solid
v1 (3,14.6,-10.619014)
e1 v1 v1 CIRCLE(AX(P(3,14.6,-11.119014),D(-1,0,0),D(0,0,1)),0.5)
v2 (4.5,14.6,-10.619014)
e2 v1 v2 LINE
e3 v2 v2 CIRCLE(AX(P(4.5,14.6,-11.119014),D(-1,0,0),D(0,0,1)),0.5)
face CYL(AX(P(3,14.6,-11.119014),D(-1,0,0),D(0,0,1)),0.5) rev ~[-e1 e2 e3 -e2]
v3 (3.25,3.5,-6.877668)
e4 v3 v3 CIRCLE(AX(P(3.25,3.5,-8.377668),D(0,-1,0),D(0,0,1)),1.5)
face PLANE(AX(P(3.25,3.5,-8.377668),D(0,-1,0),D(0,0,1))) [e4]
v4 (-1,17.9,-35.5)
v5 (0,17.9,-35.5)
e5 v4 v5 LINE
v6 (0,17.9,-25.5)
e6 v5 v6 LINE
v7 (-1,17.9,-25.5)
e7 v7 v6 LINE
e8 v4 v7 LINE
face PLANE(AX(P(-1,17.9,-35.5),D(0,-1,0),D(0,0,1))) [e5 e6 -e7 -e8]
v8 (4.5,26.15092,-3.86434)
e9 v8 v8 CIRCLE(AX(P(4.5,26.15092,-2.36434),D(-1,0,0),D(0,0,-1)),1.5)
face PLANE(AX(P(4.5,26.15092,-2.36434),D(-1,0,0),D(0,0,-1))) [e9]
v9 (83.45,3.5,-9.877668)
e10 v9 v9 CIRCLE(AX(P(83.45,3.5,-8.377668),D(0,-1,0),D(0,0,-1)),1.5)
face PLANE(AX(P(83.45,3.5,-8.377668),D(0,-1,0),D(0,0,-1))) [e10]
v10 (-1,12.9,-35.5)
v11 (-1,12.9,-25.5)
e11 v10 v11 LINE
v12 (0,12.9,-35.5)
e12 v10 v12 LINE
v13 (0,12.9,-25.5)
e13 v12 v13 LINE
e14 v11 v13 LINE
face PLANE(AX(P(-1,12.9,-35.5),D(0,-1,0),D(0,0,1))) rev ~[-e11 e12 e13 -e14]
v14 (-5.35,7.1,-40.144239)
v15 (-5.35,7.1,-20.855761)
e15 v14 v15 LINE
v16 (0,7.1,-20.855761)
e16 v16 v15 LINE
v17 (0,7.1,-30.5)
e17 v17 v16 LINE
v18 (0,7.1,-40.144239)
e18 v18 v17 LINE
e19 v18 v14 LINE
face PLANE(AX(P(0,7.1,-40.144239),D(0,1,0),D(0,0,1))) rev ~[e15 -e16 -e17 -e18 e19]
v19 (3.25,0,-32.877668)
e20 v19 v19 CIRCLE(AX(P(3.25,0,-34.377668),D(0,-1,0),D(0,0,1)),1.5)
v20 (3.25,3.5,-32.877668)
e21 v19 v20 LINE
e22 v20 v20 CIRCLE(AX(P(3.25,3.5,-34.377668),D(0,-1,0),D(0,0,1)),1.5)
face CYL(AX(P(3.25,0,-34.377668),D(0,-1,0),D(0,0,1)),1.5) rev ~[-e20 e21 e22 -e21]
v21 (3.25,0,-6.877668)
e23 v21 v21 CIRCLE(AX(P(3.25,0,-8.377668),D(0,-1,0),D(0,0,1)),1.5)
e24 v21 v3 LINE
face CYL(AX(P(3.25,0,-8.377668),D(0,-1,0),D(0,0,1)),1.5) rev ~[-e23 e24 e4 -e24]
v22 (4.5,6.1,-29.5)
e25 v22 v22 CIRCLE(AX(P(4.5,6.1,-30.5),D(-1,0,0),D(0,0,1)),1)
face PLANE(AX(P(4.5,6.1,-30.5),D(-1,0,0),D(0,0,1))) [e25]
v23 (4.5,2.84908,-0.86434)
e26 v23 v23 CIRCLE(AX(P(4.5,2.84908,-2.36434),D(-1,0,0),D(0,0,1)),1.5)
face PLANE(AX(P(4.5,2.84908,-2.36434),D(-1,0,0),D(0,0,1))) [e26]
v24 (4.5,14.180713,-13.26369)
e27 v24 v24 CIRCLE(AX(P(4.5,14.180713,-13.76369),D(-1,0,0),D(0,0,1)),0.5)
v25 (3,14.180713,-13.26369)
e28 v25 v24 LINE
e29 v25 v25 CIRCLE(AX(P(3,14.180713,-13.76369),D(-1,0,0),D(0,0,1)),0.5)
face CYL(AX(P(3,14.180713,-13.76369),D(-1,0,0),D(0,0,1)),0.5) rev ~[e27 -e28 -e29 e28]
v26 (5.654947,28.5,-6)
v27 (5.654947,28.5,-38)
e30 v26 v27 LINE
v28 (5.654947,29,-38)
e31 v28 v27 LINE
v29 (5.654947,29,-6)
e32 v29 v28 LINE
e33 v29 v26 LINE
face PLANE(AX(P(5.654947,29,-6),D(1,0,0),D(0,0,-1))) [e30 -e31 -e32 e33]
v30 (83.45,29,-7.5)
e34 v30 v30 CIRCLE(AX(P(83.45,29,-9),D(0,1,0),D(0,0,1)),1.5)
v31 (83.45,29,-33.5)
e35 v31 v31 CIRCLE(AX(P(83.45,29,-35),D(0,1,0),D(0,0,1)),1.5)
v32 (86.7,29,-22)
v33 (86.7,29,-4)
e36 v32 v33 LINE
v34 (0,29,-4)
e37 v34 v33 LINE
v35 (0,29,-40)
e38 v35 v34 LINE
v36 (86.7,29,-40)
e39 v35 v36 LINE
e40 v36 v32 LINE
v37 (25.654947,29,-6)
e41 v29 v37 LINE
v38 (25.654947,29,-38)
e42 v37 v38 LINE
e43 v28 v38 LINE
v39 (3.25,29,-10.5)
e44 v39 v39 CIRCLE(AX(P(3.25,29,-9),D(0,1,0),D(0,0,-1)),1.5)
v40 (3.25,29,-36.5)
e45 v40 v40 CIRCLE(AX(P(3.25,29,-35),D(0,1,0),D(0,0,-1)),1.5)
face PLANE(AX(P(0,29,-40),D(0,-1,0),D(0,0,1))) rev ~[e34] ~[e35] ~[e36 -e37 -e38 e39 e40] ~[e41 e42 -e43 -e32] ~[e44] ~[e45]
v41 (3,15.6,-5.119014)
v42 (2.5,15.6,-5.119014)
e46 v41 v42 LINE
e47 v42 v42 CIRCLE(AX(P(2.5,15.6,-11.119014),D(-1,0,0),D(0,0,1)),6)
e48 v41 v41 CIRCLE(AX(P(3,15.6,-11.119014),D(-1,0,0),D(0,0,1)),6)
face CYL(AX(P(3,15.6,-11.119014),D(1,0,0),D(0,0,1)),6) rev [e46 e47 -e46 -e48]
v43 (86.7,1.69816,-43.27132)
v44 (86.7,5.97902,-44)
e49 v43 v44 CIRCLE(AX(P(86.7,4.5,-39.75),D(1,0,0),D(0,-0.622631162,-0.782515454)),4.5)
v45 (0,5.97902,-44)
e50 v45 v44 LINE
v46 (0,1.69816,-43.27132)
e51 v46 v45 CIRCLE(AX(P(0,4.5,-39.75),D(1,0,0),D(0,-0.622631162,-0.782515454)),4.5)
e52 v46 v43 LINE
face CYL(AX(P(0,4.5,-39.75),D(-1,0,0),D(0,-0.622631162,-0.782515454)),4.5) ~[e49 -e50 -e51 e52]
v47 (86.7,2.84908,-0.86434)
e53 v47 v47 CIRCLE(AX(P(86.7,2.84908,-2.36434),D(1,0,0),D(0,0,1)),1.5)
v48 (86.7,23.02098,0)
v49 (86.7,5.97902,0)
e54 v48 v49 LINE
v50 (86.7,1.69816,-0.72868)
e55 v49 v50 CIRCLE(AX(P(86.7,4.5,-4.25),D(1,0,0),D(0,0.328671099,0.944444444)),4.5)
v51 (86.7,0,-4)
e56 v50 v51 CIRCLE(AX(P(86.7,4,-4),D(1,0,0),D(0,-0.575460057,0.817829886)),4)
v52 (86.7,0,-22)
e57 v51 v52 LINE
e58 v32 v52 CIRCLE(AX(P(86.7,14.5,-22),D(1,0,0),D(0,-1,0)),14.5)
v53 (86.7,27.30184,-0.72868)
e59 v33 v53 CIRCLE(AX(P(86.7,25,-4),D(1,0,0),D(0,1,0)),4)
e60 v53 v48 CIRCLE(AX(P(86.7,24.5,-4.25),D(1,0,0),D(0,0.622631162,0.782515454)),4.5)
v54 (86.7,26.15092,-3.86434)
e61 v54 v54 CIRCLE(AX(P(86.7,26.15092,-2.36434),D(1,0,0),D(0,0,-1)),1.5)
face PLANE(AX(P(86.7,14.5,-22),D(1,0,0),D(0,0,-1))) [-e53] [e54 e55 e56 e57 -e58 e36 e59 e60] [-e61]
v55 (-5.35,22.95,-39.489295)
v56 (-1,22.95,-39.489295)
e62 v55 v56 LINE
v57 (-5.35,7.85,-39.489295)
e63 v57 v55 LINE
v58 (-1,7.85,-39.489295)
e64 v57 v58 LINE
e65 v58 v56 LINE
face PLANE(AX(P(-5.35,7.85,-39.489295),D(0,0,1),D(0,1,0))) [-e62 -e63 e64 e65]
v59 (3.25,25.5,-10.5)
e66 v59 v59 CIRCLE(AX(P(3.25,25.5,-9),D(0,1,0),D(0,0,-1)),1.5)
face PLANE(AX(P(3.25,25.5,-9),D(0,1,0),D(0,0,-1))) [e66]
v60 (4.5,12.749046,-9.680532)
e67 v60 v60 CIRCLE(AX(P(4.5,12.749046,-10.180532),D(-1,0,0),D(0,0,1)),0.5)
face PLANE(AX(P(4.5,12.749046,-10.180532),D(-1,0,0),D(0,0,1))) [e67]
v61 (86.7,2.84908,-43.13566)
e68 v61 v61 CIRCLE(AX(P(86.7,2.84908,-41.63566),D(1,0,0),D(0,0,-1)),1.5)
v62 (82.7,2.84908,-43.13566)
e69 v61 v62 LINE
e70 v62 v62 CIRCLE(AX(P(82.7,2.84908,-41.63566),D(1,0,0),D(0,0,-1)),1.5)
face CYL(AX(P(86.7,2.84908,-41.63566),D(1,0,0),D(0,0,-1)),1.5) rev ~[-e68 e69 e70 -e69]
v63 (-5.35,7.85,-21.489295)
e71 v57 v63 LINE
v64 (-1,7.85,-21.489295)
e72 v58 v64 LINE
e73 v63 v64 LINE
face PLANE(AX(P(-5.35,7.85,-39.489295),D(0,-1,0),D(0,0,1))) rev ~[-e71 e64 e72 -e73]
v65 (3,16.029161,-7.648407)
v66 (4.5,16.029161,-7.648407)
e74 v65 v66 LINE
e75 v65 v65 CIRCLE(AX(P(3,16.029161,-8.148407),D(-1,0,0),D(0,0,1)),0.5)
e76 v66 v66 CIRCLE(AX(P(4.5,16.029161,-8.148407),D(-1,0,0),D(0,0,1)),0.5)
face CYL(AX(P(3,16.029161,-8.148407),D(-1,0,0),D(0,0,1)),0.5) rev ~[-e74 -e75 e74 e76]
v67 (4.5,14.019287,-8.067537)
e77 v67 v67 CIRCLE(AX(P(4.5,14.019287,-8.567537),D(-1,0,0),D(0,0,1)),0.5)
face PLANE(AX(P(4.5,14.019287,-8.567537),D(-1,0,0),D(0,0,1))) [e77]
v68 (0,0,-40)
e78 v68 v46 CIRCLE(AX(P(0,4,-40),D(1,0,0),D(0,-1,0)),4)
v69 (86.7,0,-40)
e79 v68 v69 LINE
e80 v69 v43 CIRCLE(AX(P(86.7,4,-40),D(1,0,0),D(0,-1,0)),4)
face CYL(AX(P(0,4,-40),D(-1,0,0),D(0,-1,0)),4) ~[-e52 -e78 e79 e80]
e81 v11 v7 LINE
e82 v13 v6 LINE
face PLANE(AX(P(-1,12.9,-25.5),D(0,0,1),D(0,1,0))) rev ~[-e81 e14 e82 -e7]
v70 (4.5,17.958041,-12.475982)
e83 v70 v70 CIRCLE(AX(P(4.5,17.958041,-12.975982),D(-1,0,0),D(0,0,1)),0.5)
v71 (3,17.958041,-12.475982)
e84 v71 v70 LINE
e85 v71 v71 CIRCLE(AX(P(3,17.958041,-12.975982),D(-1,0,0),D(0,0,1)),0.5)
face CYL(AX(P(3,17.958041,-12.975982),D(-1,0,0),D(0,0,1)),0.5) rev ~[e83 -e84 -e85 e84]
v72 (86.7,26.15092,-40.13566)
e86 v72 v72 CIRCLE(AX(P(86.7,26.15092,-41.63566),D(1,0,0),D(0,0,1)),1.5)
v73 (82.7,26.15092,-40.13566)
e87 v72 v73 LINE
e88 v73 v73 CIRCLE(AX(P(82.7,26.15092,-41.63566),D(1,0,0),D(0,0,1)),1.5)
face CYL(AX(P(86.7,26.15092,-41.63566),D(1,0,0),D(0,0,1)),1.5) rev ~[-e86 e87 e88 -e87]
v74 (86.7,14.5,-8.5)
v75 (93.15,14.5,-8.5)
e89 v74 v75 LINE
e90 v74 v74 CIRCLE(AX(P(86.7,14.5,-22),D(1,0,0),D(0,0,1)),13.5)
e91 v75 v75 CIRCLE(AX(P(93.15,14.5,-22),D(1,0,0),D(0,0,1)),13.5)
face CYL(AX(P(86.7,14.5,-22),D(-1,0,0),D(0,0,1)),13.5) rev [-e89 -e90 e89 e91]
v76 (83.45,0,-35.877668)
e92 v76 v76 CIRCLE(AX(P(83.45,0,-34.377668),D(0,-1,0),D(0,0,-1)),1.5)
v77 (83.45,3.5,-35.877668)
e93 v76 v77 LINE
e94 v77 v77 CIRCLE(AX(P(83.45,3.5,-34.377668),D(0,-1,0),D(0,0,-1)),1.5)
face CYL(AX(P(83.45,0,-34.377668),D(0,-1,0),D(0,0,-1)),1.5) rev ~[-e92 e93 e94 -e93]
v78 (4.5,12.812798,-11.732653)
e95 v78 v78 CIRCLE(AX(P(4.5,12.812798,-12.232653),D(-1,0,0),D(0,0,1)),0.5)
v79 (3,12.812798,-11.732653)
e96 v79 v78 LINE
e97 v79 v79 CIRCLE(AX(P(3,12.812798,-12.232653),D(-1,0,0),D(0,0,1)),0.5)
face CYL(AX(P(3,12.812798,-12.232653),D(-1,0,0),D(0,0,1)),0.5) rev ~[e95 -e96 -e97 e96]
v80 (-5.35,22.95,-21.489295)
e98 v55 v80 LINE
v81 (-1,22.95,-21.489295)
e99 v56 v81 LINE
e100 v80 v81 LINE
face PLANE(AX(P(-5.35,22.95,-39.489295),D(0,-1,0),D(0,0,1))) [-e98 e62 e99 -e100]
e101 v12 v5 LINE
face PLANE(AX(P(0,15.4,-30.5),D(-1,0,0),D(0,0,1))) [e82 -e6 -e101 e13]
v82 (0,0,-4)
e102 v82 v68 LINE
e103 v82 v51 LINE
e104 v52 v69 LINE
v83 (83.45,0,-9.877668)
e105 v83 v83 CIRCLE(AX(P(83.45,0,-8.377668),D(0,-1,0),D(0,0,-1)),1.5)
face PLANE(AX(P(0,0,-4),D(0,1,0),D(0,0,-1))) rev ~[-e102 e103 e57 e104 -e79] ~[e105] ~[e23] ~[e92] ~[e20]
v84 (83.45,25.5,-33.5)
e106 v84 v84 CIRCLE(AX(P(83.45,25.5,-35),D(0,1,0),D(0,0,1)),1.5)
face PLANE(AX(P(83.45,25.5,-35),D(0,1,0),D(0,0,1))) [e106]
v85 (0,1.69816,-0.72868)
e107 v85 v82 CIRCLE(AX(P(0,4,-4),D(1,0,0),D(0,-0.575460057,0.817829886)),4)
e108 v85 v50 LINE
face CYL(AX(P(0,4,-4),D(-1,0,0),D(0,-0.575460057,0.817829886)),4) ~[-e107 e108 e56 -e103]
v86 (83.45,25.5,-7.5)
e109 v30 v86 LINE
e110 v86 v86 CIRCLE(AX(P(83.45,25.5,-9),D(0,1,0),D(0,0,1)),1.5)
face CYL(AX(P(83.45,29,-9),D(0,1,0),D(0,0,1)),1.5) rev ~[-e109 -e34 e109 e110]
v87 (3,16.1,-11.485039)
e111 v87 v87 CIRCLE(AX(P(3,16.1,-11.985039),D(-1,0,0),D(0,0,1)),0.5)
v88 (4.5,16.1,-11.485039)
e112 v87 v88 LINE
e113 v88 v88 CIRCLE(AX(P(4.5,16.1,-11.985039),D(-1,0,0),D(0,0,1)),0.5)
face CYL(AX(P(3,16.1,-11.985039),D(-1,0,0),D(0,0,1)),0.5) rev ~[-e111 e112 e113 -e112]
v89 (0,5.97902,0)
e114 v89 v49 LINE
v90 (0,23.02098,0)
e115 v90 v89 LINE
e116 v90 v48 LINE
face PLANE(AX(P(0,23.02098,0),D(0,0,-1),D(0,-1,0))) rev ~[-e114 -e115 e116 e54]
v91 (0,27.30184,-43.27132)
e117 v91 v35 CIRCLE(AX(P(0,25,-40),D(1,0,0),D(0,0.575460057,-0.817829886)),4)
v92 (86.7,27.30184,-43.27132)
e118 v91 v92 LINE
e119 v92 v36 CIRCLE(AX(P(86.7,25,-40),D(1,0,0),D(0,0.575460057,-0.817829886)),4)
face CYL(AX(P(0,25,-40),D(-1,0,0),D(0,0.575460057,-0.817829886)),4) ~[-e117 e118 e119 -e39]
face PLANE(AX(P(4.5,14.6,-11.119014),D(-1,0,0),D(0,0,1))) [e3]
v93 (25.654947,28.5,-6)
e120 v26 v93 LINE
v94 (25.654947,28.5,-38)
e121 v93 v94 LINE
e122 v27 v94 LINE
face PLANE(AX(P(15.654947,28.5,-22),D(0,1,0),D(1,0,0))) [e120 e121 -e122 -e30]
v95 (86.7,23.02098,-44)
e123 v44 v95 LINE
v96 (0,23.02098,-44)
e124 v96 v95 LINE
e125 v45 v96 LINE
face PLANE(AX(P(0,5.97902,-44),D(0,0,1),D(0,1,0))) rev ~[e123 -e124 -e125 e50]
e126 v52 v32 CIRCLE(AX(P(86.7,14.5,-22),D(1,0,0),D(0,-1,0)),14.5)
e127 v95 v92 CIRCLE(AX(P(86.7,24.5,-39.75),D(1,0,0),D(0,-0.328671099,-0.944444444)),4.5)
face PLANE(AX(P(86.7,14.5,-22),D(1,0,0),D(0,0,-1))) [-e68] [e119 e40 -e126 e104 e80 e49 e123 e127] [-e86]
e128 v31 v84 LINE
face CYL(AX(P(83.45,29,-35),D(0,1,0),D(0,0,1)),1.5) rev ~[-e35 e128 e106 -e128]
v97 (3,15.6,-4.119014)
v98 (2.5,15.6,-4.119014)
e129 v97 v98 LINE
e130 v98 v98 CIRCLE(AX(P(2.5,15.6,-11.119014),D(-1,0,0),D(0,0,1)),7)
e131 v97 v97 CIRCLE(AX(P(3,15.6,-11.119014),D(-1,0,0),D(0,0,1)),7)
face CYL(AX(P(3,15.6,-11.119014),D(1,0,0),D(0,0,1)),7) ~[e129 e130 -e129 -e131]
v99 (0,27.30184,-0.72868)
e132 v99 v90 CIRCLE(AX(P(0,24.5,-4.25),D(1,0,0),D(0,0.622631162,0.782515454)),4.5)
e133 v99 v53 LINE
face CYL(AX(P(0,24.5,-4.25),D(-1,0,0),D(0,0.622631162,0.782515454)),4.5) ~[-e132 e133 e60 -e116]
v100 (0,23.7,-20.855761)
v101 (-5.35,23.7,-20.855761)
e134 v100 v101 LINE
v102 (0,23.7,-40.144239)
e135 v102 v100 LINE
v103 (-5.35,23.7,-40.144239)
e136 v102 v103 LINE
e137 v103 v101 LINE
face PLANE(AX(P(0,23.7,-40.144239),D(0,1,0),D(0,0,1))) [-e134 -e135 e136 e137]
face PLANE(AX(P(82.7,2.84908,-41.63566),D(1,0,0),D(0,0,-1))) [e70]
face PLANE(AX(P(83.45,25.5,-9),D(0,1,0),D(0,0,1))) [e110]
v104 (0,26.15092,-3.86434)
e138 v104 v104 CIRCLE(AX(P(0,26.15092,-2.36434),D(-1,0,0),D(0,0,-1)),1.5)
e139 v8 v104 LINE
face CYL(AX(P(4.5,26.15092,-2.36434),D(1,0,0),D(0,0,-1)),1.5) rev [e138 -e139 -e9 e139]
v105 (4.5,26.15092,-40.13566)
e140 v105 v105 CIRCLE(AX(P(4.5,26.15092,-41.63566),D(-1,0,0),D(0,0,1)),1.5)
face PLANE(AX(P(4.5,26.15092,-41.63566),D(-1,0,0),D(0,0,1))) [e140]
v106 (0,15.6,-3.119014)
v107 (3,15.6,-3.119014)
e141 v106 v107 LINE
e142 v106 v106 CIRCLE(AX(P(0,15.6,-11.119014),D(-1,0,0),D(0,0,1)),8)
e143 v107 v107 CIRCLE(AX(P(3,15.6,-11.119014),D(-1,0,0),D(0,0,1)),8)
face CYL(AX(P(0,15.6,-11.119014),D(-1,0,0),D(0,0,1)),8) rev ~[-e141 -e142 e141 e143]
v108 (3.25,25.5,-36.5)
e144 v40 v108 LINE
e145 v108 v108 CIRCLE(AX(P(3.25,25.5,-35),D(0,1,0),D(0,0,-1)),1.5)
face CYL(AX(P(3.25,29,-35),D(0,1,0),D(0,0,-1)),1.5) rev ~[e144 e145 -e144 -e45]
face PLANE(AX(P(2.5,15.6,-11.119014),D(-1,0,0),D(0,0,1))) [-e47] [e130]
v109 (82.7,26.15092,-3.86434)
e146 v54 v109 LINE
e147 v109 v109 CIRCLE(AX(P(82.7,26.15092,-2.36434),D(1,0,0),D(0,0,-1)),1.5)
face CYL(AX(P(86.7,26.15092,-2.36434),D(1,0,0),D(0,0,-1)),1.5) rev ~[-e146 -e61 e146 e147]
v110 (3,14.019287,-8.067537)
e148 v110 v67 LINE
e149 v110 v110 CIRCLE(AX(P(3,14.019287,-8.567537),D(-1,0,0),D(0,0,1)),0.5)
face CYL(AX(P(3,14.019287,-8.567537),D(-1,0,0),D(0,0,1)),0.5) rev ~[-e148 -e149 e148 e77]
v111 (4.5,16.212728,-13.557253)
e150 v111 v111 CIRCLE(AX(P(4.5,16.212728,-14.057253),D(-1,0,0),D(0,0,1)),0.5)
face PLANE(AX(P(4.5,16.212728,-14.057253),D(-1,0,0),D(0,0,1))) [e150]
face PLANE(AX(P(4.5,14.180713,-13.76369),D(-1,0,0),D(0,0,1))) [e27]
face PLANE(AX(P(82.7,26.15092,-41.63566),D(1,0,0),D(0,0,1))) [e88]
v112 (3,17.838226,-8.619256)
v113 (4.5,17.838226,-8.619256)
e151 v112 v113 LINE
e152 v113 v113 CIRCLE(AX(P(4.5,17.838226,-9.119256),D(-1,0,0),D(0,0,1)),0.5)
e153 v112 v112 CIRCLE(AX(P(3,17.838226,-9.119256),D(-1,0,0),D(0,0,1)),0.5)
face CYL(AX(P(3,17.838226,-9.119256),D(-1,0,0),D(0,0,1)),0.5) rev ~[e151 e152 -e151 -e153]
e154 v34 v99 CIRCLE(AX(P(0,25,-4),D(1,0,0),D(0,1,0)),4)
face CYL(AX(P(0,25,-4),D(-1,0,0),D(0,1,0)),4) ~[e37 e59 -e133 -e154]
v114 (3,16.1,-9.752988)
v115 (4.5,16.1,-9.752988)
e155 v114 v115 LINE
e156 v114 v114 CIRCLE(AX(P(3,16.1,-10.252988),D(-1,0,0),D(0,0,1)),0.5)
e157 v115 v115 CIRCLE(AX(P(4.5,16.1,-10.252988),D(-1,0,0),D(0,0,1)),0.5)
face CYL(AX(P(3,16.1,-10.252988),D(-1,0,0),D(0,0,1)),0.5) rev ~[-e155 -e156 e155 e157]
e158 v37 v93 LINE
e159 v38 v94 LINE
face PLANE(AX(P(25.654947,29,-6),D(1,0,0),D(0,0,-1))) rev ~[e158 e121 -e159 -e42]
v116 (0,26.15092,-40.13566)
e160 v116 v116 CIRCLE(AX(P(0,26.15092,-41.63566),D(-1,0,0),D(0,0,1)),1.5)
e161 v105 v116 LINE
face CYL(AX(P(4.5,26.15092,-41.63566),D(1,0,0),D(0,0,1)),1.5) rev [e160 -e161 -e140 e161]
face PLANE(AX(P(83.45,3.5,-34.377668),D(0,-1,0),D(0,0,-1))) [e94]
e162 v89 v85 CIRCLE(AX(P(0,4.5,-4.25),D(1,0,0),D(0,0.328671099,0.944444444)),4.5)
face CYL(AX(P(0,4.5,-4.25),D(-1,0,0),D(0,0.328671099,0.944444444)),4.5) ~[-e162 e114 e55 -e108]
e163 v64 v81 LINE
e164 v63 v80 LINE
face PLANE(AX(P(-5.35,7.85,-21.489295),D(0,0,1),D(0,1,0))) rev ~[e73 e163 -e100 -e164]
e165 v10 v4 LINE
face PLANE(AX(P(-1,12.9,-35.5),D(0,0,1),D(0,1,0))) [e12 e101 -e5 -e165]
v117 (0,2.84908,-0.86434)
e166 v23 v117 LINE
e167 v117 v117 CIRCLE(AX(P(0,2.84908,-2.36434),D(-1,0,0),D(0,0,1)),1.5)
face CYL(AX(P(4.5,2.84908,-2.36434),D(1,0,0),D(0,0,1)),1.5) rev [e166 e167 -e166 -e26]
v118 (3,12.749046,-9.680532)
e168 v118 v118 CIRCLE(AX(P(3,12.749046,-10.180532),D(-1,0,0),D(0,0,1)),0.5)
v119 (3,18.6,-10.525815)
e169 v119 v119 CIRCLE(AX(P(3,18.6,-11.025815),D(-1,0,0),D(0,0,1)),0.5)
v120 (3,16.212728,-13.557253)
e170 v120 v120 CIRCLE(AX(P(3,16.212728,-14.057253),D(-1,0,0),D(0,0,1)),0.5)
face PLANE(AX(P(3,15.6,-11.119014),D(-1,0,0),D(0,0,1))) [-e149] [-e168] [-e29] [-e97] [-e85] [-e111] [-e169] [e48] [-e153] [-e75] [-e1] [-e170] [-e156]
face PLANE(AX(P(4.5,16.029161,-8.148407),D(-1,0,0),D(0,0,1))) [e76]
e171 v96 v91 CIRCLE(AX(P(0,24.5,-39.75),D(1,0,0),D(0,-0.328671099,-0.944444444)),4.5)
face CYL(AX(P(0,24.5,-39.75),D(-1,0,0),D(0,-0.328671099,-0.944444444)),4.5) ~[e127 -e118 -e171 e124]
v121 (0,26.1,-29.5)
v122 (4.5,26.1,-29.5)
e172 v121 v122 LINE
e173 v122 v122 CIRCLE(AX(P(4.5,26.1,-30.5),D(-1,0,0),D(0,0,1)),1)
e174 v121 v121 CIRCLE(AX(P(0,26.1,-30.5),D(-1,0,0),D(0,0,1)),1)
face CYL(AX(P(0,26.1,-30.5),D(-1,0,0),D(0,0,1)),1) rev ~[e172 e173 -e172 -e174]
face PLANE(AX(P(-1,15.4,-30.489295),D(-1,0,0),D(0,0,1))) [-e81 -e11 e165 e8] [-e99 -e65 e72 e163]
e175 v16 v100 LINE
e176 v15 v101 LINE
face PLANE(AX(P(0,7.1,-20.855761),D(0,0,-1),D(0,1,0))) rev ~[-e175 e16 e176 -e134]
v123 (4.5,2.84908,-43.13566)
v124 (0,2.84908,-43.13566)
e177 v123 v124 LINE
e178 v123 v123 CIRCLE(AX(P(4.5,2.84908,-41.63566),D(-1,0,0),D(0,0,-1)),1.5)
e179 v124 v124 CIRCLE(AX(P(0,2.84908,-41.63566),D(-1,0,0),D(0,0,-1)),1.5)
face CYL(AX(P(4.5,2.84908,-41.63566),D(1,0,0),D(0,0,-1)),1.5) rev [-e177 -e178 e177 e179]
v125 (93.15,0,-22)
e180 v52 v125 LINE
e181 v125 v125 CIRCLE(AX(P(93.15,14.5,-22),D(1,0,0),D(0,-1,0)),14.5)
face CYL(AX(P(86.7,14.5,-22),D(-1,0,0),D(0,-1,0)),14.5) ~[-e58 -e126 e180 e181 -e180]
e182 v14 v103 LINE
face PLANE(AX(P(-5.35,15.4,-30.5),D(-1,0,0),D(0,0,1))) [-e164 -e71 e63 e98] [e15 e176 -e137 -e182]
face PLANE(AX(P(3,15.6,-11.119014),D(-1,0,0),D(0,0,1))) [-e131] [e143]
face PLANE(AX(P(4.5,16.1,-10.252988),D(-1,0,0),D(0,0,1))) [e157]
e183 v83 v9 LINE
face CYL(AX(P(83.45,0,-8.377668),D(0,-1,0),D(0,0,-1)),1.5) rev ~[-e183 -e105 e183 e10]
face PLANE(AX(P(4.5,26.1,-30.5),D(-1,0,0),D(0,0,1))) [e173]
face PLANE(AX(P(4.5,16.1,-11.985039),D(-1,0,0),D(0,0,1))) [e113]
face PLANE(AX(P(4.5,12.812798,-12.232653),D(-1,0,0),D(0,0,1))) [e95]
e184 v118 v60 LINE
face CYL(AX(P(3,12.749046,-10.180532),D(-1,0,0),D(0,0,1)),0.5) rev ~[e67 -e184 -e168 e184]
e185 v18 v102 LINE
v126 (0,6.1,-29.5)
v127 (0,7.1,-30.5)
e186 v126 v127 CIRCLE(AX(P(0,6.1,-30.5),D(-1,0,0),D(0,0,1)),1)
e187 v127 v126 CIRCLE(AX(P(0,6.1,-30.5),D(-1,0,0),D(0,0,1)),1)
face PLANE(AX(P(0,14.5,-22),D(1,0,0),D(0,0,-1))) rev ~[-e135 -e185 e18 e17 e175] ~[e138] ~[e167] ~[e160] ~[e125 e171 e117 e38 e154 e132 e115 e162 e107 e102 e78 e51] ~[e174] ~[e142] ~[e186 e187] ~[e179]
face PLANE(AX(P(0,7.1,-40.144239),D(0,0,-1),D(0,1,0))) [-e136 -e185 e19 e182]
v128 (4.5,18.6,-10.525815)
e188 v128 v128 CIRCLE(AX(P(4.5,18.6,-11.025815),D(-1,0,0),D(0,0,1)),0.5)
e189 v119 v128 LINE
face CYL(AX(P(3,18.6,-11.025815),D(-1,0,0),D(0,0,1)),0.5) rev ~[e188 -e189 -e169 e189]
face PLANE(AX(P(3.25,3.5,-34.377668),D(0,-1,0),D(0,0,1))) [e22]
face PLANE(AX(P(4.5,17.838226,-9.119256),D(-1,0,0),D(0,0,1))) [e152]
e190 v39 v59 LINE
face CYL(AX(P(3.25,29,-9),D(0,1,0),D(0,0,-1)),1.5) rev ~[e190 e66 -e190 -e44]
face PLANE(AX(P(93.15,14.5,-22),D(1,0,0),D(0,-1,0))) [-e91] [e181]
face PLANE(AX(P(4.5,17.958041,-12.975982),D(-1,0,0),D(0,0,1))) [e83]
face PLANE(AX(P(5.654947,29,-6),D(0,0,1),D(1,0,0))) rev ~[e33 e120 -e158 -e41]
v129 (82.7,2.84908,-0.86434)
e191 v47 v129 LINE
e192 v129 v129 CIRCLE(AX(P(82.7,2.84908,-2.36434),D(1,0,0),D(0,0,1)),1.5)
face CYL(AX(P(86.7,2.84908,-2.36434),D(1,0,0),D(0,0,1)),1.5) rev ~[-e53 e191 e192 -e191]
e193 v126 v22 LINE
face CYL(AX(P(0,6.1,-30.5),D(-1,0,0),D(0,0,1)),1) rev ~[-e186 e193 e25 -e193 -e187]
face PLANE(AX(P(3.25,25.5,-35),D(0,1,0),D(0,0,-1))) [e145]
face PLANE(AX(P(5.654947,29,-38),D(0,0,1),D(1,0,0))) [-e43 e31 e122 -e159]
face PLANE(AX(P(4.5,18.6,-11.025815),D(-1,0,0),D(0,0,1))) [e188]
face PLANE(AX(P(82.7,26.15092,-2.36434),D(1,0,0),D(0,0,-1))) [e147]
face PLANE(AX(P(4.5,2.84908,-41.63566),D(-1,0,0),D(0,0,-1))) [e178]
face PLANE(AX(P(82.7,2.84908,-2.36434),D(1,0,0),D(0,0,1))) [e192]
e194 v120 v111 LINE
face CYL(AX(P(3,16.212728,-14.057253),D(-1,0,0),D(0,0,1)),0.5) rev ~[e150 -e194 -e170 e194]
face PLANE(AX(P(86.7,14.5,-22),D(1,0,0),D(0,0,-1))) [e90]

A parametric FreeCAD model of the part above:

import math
import FreeCAD as App
import Part
import Sketcher


def add_polygon(sketch, points):
    """Adds a closed chain of lines whose ends are joined by coincident constraints."""
    first, n = sketch.GeometryCount, len(points)
    for a, b in zip(points, points[1:] + points[:1]):
        sketch.addGeometry(Part.LineSegment(App.Vector(*a, 0), App.Vector(*b, 0)), False)
    for i in range(n):
        sketch.addConstraint(Sketcher.Constraint("Coincident", first + i, 2, first + (i + 1) % n, 1))

doc = App.newDocument("Part")
body = doc.addObject("PartDesign::Body", "Body")

# Sketch on YZ plane
sketch1 = body.newObject("Sketcher::SketchObject", "Sketch")
sketch1.AttachmentSupport = (doc.getObject("YZ_Plane"), [""])
sketch1.MapMode = "FlatFace"
sketch1.addGeometry([
    Part.LineSegment(App.Vector(0, -4, 0), App.Vector(0, -40, 0)),  # 0
    Part.ArcOfCircle(Part.Circle(App.Vector(4, -40, 0), App.Vector(0, 0, 1), 4), math.radians(180), math.radians(234.868143)),  # 1
    Part.ArcOfCircle(Part.Circle(App.Vector(4.5, -39.75, 0), App.Vector(0, 0, 1), 4.5), math.radians(-128.508531), math.radians(-70.811864)),  # 2
    Part.LineSegment(App.Vector(5.97902, -44, 0), App.Vector(23.02098, -44, 0)),  # 3
    Part.ArcOfCircle(Part.Circle(App.Vector(24.5, -39.75, 0), App.Vector(0, 0, 1), 4.5), math.radians(-109.188136), math.radians(-51.491469)),  # 4
    Part.ArcOfCircle(Part.Circle(App.Vector(25, -40, 0), App.Vector(0, 0, 1), 4), math.radians(-54.868143), math.radians(0)),  # 5
    Part.LineSegment(App.Vector(29, -40, 0), App.Vector(29, -4, 0)),  # 6
    Part.ArcOfCircle(Part.Circle(App.Vector(25, -4, 0), App.Vector(0, 0, 1), 4), math.radians(0), math.radians(54.868143)),  # 7
    Part.ArcOfCircle(Part.Circle(App.Vector(24.5, -4.25, 0), App.Vector(0, 0, 1), 4.5), math.radians(51.491469), math.radians(109.188136)),  # 8
    Part.LineSegment(App.Vector(23.02098, 0, 0), App.Vector(5.97902, 0, 0)),  # 9
    Part.ArcOfCircle(Part.Circle(App.Vector(4.5, -4.25, 0), App.Vector(0, 0, 1), 4.5), math.radians(70.811864), math.radians(128.508531)),  # 10
    Part.ArcOfCircle(Part.Circle(App.Vector(4, -4, 0), App.Vector(0, 0, 1), 4), math.radians(125.131857), math.radians(180)),  # 11
], False)
sketch1.addConstraint([
    Sketcher.Constraint("Tangent", 0, 2, 1, 1),
    Sketcher.Constraint("Coincident", 1, 2, 2, 1),
    Sketcher.Constraint("Coincident", 2, 2, 3, 1),
    Sketcher.Constraint("Coincident", 3, 2, 4, 1),
    Sketcher.Constraint("Coincident", 4, 2, 5, 1),
    Sketcher.Constraint("Tangent", 5, 2, 6, 1),
    Sketcher.Constraint("Tangent", 6, 2, 7, 1),
    Sketcher.Constraint("Coincident", 7, 2, 8, 1),
    Sketcher.Constraint("Coincident", 8, 2, 9, 1),
    Sketcher.Constraint("Coincident", 9, 2, 10, 1),
    Sketcher.Constraint("Coincident", 10, 2, 11, 1),
    Sketcher.Constraint("Tangent", 11, 2, 0, 1),
    Sketcher.Constraint("Vertical", 0),
    Sketcher.Constraint("Horizontal", 3),
    Sketcher.Constraint("Vertical", 6),
    Sketcher.Constraint("Horizontal", 9),
    Sketcher.Constraint("Equal", 2, 4),
    Sketcher.Constraint("Equal", 1, 5),
    Sketcher.Constraint("Equal", 5, 7),
    Sketcher.Constraint("Equal", 4, 8),
    Sketcher.Constraint("Equal", 8, 10),
    Sketcher.Constraint("Equal", 7, 11),
    Sketcher.Constraint("PointOnObject", 0, 2, -2),
    Sketcher.Constraint("PointOnObject", 8, 2, -1),
    Sketcher.Constraint("Horizontal", 2, 3, 4, 3),
    Sketcher.Constraint("Horizontal", 1, 3, 5, 3),
    Sketcher.Constraint("Horizontal", 8, 3, 10, 3),
    Sketcher.Constraint("Horizontal", 7, 3, 11, 3),
    Sketcher.Constraint("Horizontal", 1, 2, 4, 2),
    Sketcher.Constraint("Horizontal", 7, 2, 10, 2),
    Sketcher.Constraint("Vertical", 4, 3, 8, 3),
    Sketcher.Constraint("Vertical", 4, 2, 7, 2),
    Sketcher.Constraint("Vertical", 3, 2, 8, 2),
    Sketcher.Constraint("Radius", 1, 4.0),
    Sketcher.Constraint("Radius", 2, 4.5),
    Sketcher.Constraint("DistanceY", 0, 2, 0, 1, 36.0),
    Sketcher.Constraint("DistanceY", 1, 3, -1, 1, 40.0),
    Sketcher.Constraint("DistanceX", -1, 1, 5, 3, 25.0),
    Sketcher.Constraint("DistanceX", 2, 3, 4, 3, 20.0),
    Sketcher.Constraint("DistanceY", 4, 3, 8, 3, 35.5),
])
pad1 = body.newObject("PartDesign::Pad", "Pad")
pad1.Profile = sketch1
pad1.Length = 86.7

# Sketch on YZ plane
sketch2 = body.newObject("Sketcher::SketchObject", "Sketch001")
sketch2.AttachmentSupport = (doc.getObject("YZ_Plane"), [""])
sketch2.MapMode = "FlatFace"
sketch2.AttachmentOffset = App.Placement(App.Vector(0, 0, 86.7), App.Rotation())
sketch2.addGeometry([
    Part.Circle(App.Vector(26.15092, -2.36434, 0), App.Vector(0, 0, 1), 1.5),
    Part.Circle(App.Vector(26.15092, -41.63566, 0), App.Vector(0, 0, 1), 1.5),
    Part.Circle(App.Vector(2.84908, -41.63566, 0), App.Vector(0, 0, 1), 1.5),
    Part.Circle(App.Vector(2.84908, -2.36434, 0), App.Vector(0, 0, 1), 1.5),
], False)
sketch2.addConstraint([
    Sketcher.Constraint("Equal", 0, 1),
    Sketcher.Constraint("Equal", 1, 2),
    Sketcher.Constraint("Equal", 2, 3),
    Sketcher.Constraint("Horizontal", 1, 3, 2, 3),
    Sketcher.Constraint("Horizontal", 0, 3, 3, 3),
    Sketcher.Constraint("Vertical", 0, 3, 1, 3),
    Sketcher.Constraint("Vertical", 2, 3, 3, 3),
    Sketcher.Constraint("Diameter", 0, 3.0),
    Sketcher.Constraint("DistanceX", -1, 1, 0, 3, 26.15092),
    Sketcher.Constraint("DistanceY", 0, 3, -1, 1, 2.36434),
    Sketcher.Constraint("DistanceY", 1, 3, -1, 1, 41.63566),
    Sketcher.Constraint("DistanceX", -1, 1, 2, 3, 2.84908),
])
pocket1 = body.newObject("PartDesign::Pocket", "Pocket")
pocket1.Profile = sketch2
pocket1.Length = 4

# Sketch on YZ plane
sketch3 = body.newObject("Sketcher::SketchObject", "Sketch002")
sketch3.AttachmentSupport = (doc.getObject("YZ_Plane"), [""])
sketch3.MapMode = "FlatFace"
sketch3.AttachmentOffset = App.Placement(App.Vector(0, 0, 86.7), App.Rotation())
sketch3.addGeometry([
    Part.Circle(App.Vector(14.5, -22, 0), App.Vector(0, 0, 1), 14.5),
    Part.Circle(App.Vector(14.5, -22, 0), App.Vector(0, 0, 1), 13.5),
], False)
sketch3.addConstraint([
    Sketcher.Constraint("Coincident", 1, 3, 0, 3),
    Sketcher.Constraint("Diameter", 0, 29.0),
    Sketcher.Constraint("Diameter", 1, 27.0),
    Sketcher.Constraint("DistanceY", 0, 3, -1, 1, 22.0),
    Sketcher.Constraint("DistanceX", -1, 1, 0, 3, 14.5),
])
pad2 = body.newObject("PartDesign::Pad", "Pad001")
pad2.Profile = sketch3
pad2.Length = 6.45

# Sketch on XZ plane
sketch4 = body.newObject("Sketcher::SketchObject", "Sketch003")
sketch4.AttachmentSupport = (doc.getObject("XZ_Plane"), [""])
sketch4.MapMode = "FlatFace"
sketch4.AttachmentOffset = App.Placement(App.Vector(0, 0, -29), App.Rotation())
sketch4.addGeometry([
    Part.Circle(App.Vector(83.45, -35, 0), App.Vector(0, 0, 1), 1.5),
    Part.Circle(App.Vector(83.45, -9, 0), App.Vector(0, 0, 1), 1.5),
    Part.Circle(App.Vector(3.25, -9, 0), App.Vector(0, 0, 1), 1.5),
    Part.Circle(App.Vector(3.25, -35, 0), App.Vector(0, 0, 1), 1.5),
], False)
sketch4.addConstraint([
    Sketcher.Constraint("Equal", 0, 1),
    Sketcher.Constraint("Equal", 1, 2),
    Sketcher.Constraint("Equal", 2, 3),
    Sketcher.Constraint("Horizontal", 1, 3, 2, 3),
    Sketcher.Constraint("Horizontal", 0, 3, 3, 3),
    Sketcher.Constraint("Vertical", 0, 3, 1, 3),
    Sketcher.Constraint("Vertical", 2, 3, 3, 3),
    Sketcher.Constraint("Diameter", 0, 3.0),
    Sketcher.Constraint("DistanceY", 0, 3, -1, 1, 35.0),
    Sketcher.Constraint("DistanceY", 1, 3, -1, 1, 9.0),
    Sketcher.Constraint("DistanceX", 2, 3, 1, 3, 80.2),
    Sketcher.Constraint("DistanceX", -1, 1, 0, 3, 83.45),
])
pocket2 = body.newObject("PartDesign::Pocket", "Pocket001")
pocket2.Profile = sketch4
pocket2.Length = 3.5
pocket2.Reversed = True

# Sketch on XZ plane
sketch5 = body.newObject("Sketcher::SketchObject", "Sketch004")
sketch5.AttachmentSupport = (doc.getObject("XZ_Plane"), [""])
sketch5.MapMode = "FlatFace"
sketch5.AttachmentOffset = App.Placement(App.Vector(0, 0, -29), App.Rotation())
add_polygon(sketch5, [(5.654947, -38), (5.654947, -6), (25.654947, -6), (25.654947, -38)])  # lines 0-3
sketch5.addConstraint([
    Sketcher.Constraint("Vertical", 0),
    Sketcher.Constraint("Horizontal", 1),
    Sketcher.Constraint("Vertical", 2),
    Sketcher.Constraint("Horizontal", 3),
    Sketcher.Constraint("DistanceX", 1, 1, 1, 2, 20.0),
    Sketcher.Constraint("DistanceY", 0, 1, 0, 2, 32.0),
    Sketcher.Constraint("DistanceY", 0, 2, -1, 1, 6.0),
    Sketcher.Constraint("DistanceX", -1, 1, 0, 2, 5.654947),
])
pocket3 = body.newObject("PartDesign::Pocket", "Pocket002")
pocket3.Profile = sketch5
pocket3.Length = 0.5
pocket3.Reversed = True

# Sketch on YZ plane
sketch6 = body.newObject("Sketcher::SketchObject", "Sketch005")
sketch6.AttachmentSupport = (doc.getObject("YZ_Plane"), [""])
sketch6.MapMode = "FlatFace"
sketch6.addGeometry([
    Part.Circle(App.Vector(6.1, -30.5, 0), App.Vector(0, 0, 1), 1),
    Part.Circle(App.Vector(26.1, -30.5, 0), App.Vector(0, 0, 1), 1),
], False)
sketch6.addConstraint([
    Sketcher.Constraint("Equal", 0, 1),
    Sketcher.Constraint("Horizontal", 0, 3, 1, 3),
    Sketcher.Constraint("Diameter", 0, 2.0),
    Sketcher.Constraint("DistanceX", 0, 3, 1, 3, 20.0),
    Sketcher.Constraint("DistanceX", -1, 1, 0, 3, 6.1),
    Sketcher.Constraint("DistanceY", 0, 3, -1, 1, 30.5),
])
pocket4 = body.newObject("PartDesign::Pocket", "Pocket003")
pocket4.Profile = sketch6
pocket4.Length = 4.5
pocket4.Reversed = True

# Sketch on YZ plane
sketch7 = body.newObject("Sketcher::SketchObject", "Sketch006")
sketch7.AttachmentSupport = (doc.getObject("YZ_Plane"), [""])
sketch7.MapMode = "FlatFace"
sketch7.AttachmentOffset = App.Placement(App.Vector(0, 0, 4.5), App.Rotation())
sketch7.addGeometry([
    Part.Circle(App.Vector(26.15092, -41.63566, 0), App.Vector(0, 0, 1), 1.5),
    Part.Circle(App.Vector(2.84908, -41.63566, 0), App.Vector(0, 0, 1), 1.5),
    Part.Circle(App.Vector(2.84908, -2.36434, 0), App.Vector(0, 0, 1), 1.5),
    Part.Circle(App.Vector(26.15092, -2.36434, 0), App.Vector(0, 0, 1), 1.5),
], False)
sketch7.addConstraint([
    Sketcher.Constraint("Equal", 0, 1),
    Sketcher.Constraint("Equal", 1, 2),
    Sketcher.Constraint("Equal", 2, 3),
    Sketcher.Constraint("Horizontal", 0, 3, 1, 3),
    Sketcher.Constraint("Horizontal", 2, 3, 3, 3),
    Sketcher.Constraint("Vertical", 1, 3, 2, 3),
    Sketcher.Constraint("Vertical", 0, 3, 3, 3),
    Sketcher.Constraint("Diameter", 0, 3.0),
    Sketcher.Constraint("DistanceX", -1, 1, 0, 3, 26.15092),
    Sketcher.Constraint("DistanceY", 0, 3, -1, 1, 41.63566),
    Sketcher.Constraint("DistanceX", -1, 1, 1, 3, 2.84908),
    Sketcher.Constraint("DistanceY", 2, 3, -1, 1, 2.36434),
])
pocket5 = body.newObject("PartDesign::Pocket", "Pocket004")
pocket5.Profile = sketch7
pocket5.Length = 4.5

# Sketch on YZ plane
sketch8 = body.newObject("Sketcher::SketchObject", "Sketch007")
sketch8.AttachmentSupport = (doc.getObject("YZ_Plane"), [""])
sketch8.MapMode = "FlatFace"
add_polygon(sketch8, [(23.7, -40.144239), (7.1, -40.144239), (7.1, -20.855761), (23.7, -20.855761)])  # lines 0-3
sketch8.addConstraint([
    Sketcher.Constraint("Horizontal", 0),
    Sketcher.Constraint("Vertical", 1),
    Sketcher.Constraint("Horizontal", 2),
    Sketcher.Constraint("Vertical", 3),
    Sketcher.Constraint("DistanceX", 0, 2, 0, 1, 16.6),
    Sketcher.Constraint("DistanceX", -1, 1, 0, 2, 7.1),
    Sketcher.Constraint("DistanceY", 1, 1, 1, 2, 19.288477),
    Sketcher.Constraint("DistanceY", 0, 2, -1, 1, 40.144239),
])
pad3 = body.newObject("PartDesign::Pad", "Pad002")
pad3.Profile = sketch8
pad3.Length = 5.35
pad3.Reversed = True

# Sketch on YZ plane
sketch9 = body.newObject("Sketcher::SketchObject", "Sketch008")
sketch9.AttachmentSupport = (doc.getObject("YZ_Plane"), [""])
sketch9.MapMode = "FlatFace"
sketch9.AttachmentOffset = App.Placement(App.Vector(0, 0, -5.35), App.Rotation())
add_polygon(sketch9, [(22.95, -39.489295), (7.85, -39.489295), (7.85, -21.489295), (22.95, -21.489295)])  # lines 0-3
sketch9.addConstraint([
    Sketcher.Constraint("Horizontal", 0),
    Sketcher.Constraint("Vertical", 1),
    Sketcher.Constraint("Horizontal", 2),
    Sketcher.Constraint("Vertical", 3),
    Sketcher.Constraint("DistanceY", 1, 1, 1, 2, 18.0),
    Sketcher.Constraint("DistanceX", 0, 2, 0, 1, 15.1),
    Sketcher.Constraint("DistanceX", -1, 1, 0, 2, 7.85),
    Sketcher.Constraint("DistanceY", 0, 2, -1, 1, 39.489295),
])
pocket6 = body.newObject("PartDesign::Pocket", "Pocket005")
pocket6.Profile = sketch9
pocket6.Length = 4.35
pocket6.Reversed = True

# Sketch on YZ plane
sketch10 = body.newObject("Sketcher::SketchObject", "Sketch009")
sketch10.AttachmentSupport = (doc.getObject("YZ_Plane"), [""])
sketch10.MapMode = "FlatFace"
sketch10.AttachmentOffset = App.Placement(App.Vector(0, 0, -1), App.Rotation())
add_polygon(sketch10, [(17.9, -35.5), (12.9, -35.5), (12.9, -25.5), (17.9, -25.5)])  # lines 0-3
sketch10.addConstraint([
    Sketcher.Constraint("Horizontal", 0),
    Sketcher.Constraint("Vertical", 1),
    Sketcher.Constraint("Horizontal", 2),
    Sketcher.Constraint("Vertical", 3),
    Sketcher.Constraint("DistanceX", 0, 2, 0, 1, 5.0),
    Sketcher.Constraint("DistanceY", 1, 1, 1, 2, 10.0),
    Sketcher.Constraint("DistanceX", -1, 1, 0, 2, 12.9),
    Sketcher.Constraint("DistanceY", 0, 2, -1, 1, 35.5),
])
pocket7 = body.newObject("PartDesign::Pocket", "Pocket006")
pocket7.Profile = sketch10
pocket7.Length = 1
pocket7.Reversed = True

# Sketch on YZ plane
sketch11 = body.newObject("Sketcher::SketchObject", "Sketch010")
sketch11.AttachmentSupport = (doc.getObject("YZ_Plane"), [""])
sketch11.MapMode = "FlatFace"
sketch11.addGeometry(Part.Circle(App.Vector(15.6, -11.119014, 0), App.Vector(0, 0, 1), 8), False)
sketch11.addConstraint([
    Sketcher.Constraint("Diameter", 0, 16.0),
    Sketcher.Constraint("DistanceX", -1, 1, 0, 3, 15.6),
    Sketcher.Constraint("DistanceY", 0, 3, -1, 1, 11.119014),
])
pocket8 = body.newObject("PartDesign::Pocket", "Pocket007")
pocket8.Profile = sketch11
pocket8.Length = 3
pocket8.Reversed = True

# Sketch on YZ plane
sketch12 = body.newObject("Sketcher::SketchObject", "Sketch011")
sketch12.AttachmentSupport = (doc.getObject("YZ_Plane"), [""])
sketch12.MapMode = "FlatFace"
sketch12.AttachmentOffset = App.Placement(App.Vector(0, 0, 3), App.Rotation())
sketch12.addGeometry([
    Part.Circle(App.Vector(15.6, -11.119014, 0), App.Vector(0, 0, 1), 7),
    Part.Circle(App.Vector(15.6, -11.119014, 0), App.Vector(0, 0, 1), 6),
], False)
sketch12.addConstraint([
    Sketcher.Constraint("Coincident", 1, 3, 0, 3),
    Sketcher.Constraint("Diameter", 0, 14.0),
    Sketcher.Constraint("Diameter", 1, 12.0),
    Sketcher.Constraint("DistanceX", -1, 1, 0, 3, 15.6),
    Sketcher.Constraint("DistanceY", 0, 3, -1, 1, 11.119014),
])
pad4 = body.newObject("PartDesign::Pad", "Pad003")
pad4.Profile = sketch12
pad4.Length = 0.5
pad4.Reversed = True

# Sketch on YZ plane
sketch13 = body.newObject("Sketcher::SketchObject", "Sketch012")
sketch13.AttachmentSupport = (doc.getObject("YZ_Plane"), [""])
sketch13.MapMode = "FlatFace"
sketch13.AttachmentOffset = App.Placement(App.Vector(0, 0, 3), App.Rotation())
sketch13.addGeometry([
    Part.Circle(App.Vector(18.6, -11.025815, 0), App.Vector(0, 0, 1), 0.5),  # 0
    Part.Circle(App.Vector(17.838226, -9.119256, 0), App.Vector(0, 0, 1), 0.5),  # 1
    Part.Circle(App.Vector(16.029161, -8.148407, 0), App.Vector(0, 0, 1), 0.5),  # 2
    Part.Circle(App.Vector(14.019287, -8.567537, 0), App.Vector(0, 0, 1), 0.5),  # 3
    Part.Circle(App.Vector(12.749046, -10.180532, 0), App.Vector(0, 0, 1), 0.5),  # 4
    Part.Circle(App.Vector(12.812798, -12.232653, 0), App.Vector(0, 0, 1), 0.5),  # 5
    Part.Circle(App.Vector(14.180713, -13.76369, 0), App.Vector(0, 0, 1), 0.5),  # 6
    Part.Circle(App.Vector(16.212728, -14.057253, 0), App.Vector(0, 0, 1), 0.5),  # 7
    Part.Circle(App.Vector(17.958041, -12.975982, 0), App.Vector(0, 0, 1), 0.5),  # 8
    Part.Circle(App.Vector(16.1, -11.985039, 0), App.Vector(0, 0, 1), 0.5),  # 9
    Part.Circle(App.Vector(16.1, -10.252988, 0), App.Vector(0, 0, 1), 0.5),  # 10
    Part.Circle(App.Vector(14.6, -11.119014, 0), App.Vector(0, 0, 1), 0.5),  # 11
], False)
sketch13.addConstraint([
    Sketcher.Constraint("Equal", 0, 1),
    Sketcher.Constraint("Equal", 1, 2),
    Sketcher.Constraint("Equal", 2, 3),
    Sketcher.Constraint("Equal", 3, 4),
    Sketcher.Constraint("Equal", 4, 5),
    Sketcher.Constraint("Equal", 5, 6),
    Sketcher.Constraint("Equal", 6, 7),
    Sketcher.Constraint("Equal", 7, 8),
    Sketcher.Constraint("Equal", 8, 9),
    Sketcher.Constraint("Equal", 9, 10),
    Sketcher.Constraint("Equal", 10, 11),
    Sketcher.Constraint("Vertical", 9, 3, 10, 3),
    Sketcher.Constraint("Diameter", 0, 1.0),
    Sketcher.Constraint("DistanceX", -1, 1, 0, 3, 18.6),
    Sketcher.Constraint("DistanceX", -1, 1, 9, 3, 16.1),
    Sketcher.Constraint("DistanceX", -1, 1, 11, 3, 14.6),
    Sketcher.Constraint("DistanceX", -1, 1, 5, 3, 12.812798),
    Sketcher.Constraint("DistanceY", 7, 3, 5, 3, 1.824601),
    Sketcher.Constraint("DistanceX", 7, 3, 1, 3, 1.625498),
    Sketcher.Constraint("DistanceX", -1, 1, 2, 3, 16.029161),
    Sketcher.Constraint("DistanceY", 4, 3, -1, 1, 10.180532),
    Sketcher.Constraint("DistanceY", 6, 3, -1, 1, 13.76369),
    Sketcher.Constraint("DistanceX", -1, 1, 8, 3, 17.958041),
    Sketcher.Constraint("DistanceY", 9, 3, -1, 1, 11.985039),
    Sketcher.Constraint("DistanceY", 10, 3, -1, 1, 10.252988),
    Sketcher.Constraint("DistanceY", 0, 3, 1, 3, 1.906558),
    Sketcher.Constraint("DistanceY", 1, 3, 2, 3, 0.97085),
    Sketcher.Constraint("DistanceY", 3, 3, 2, 3, 0.41913),
    Sketcher.Constraint("DistanceX", 3, 3, 1, 3, 3.818939),
    Sketcher.Constraint("DistanceX", 4, 3, 3, 3, 1.270241),
    Sketcher.Constraint("DistanceX", 4, 3, 5, 3, 0.063752),
    Sketcher.Constraint("DistanceY", 5, 3, 4, 3, 2.052121),
    Sketcher.Constraint("DistanceY", 7, 3, 0, 3, 3.031438),
    Sketcher.Constraint("DistanceY", 7, 3, 8, 3, 1.081271),
    Sketcher.Constraint("DistanceY", 11, 3, 4, 3, 0.938482),
    Sketcher.Constraint("DistanceX", -1, 1, 6, 3, 14.180713),
])
pocket9 = body.newObject("PartDesign::Pocket", "Pocket008")
pocket9.Profile = sketch13
pocket9.Length = 1.5
pocket9.Reversed = True

# Sketch on XZ plane
sketch14 = body.newObject("Sketcher::SketchObject", "Sketch013")
sketch14.AttachmentSupport = (doc.getObject("XZ_Plane"), [""])
sketch14.MapMode = "FlatFace"
sketch14.addGeometry([
    Part.Circle(App.Vector(83.45, -8.377668, 0), App.Vector(0, 0, 1), 1.5),
    Part.Circle(App.Vector(83.45, -34.377668, 0), App.Vector(0, 0, 1), 1.5),
    Part.Circle(App.Vector(3.25, -34.377668, 0), App.Vector(0, 0, 1), 1.5),
    Part.Circle(App.Vector(3.25, -8.377668, 0), App.Vector(0, 0, 1), 1.5),
], False)
sketch14.addConstraint([
    Sketcher.Constraint("Equal", 0, 1),
    Sketcher.Constraint("Equal", 1, 2),
    Sketcher.Constraint("Equal", 2, 3),
    Sketcher.Constraint("Horizontal", 1, 3, 2, 3),
    Sketcher.Constraint("Horizontal", 0, 3, 3, 3),
    Sketcher.Constraint("Vertical", 0, 3, 1, 3),
    Sketcher.Constraint("Vertical", 2, 3, 3, 3),
    Sketcher.Constraint("Diameter", 0, 3.0),
    Sketcher.Constraint("DistanceY", 1, 3, 0, 3, 26.0),
    Sketcher.Constraint("DistanceX", 2, 3, 1, 3, 80.2),
    Sketcher.Constraint("DistanceX", -1, 1, 0, 3, 83.45),
    Sketcher.Constraint("DistanceY", 0, 3, -1, 1, 8.377668),
])
pocket10 = body.newObject("PartDesign::Pocket", "Pocket009")
pocket10.Profile = sketch14
pocket10.Length = 3.5

doc.recompute()
